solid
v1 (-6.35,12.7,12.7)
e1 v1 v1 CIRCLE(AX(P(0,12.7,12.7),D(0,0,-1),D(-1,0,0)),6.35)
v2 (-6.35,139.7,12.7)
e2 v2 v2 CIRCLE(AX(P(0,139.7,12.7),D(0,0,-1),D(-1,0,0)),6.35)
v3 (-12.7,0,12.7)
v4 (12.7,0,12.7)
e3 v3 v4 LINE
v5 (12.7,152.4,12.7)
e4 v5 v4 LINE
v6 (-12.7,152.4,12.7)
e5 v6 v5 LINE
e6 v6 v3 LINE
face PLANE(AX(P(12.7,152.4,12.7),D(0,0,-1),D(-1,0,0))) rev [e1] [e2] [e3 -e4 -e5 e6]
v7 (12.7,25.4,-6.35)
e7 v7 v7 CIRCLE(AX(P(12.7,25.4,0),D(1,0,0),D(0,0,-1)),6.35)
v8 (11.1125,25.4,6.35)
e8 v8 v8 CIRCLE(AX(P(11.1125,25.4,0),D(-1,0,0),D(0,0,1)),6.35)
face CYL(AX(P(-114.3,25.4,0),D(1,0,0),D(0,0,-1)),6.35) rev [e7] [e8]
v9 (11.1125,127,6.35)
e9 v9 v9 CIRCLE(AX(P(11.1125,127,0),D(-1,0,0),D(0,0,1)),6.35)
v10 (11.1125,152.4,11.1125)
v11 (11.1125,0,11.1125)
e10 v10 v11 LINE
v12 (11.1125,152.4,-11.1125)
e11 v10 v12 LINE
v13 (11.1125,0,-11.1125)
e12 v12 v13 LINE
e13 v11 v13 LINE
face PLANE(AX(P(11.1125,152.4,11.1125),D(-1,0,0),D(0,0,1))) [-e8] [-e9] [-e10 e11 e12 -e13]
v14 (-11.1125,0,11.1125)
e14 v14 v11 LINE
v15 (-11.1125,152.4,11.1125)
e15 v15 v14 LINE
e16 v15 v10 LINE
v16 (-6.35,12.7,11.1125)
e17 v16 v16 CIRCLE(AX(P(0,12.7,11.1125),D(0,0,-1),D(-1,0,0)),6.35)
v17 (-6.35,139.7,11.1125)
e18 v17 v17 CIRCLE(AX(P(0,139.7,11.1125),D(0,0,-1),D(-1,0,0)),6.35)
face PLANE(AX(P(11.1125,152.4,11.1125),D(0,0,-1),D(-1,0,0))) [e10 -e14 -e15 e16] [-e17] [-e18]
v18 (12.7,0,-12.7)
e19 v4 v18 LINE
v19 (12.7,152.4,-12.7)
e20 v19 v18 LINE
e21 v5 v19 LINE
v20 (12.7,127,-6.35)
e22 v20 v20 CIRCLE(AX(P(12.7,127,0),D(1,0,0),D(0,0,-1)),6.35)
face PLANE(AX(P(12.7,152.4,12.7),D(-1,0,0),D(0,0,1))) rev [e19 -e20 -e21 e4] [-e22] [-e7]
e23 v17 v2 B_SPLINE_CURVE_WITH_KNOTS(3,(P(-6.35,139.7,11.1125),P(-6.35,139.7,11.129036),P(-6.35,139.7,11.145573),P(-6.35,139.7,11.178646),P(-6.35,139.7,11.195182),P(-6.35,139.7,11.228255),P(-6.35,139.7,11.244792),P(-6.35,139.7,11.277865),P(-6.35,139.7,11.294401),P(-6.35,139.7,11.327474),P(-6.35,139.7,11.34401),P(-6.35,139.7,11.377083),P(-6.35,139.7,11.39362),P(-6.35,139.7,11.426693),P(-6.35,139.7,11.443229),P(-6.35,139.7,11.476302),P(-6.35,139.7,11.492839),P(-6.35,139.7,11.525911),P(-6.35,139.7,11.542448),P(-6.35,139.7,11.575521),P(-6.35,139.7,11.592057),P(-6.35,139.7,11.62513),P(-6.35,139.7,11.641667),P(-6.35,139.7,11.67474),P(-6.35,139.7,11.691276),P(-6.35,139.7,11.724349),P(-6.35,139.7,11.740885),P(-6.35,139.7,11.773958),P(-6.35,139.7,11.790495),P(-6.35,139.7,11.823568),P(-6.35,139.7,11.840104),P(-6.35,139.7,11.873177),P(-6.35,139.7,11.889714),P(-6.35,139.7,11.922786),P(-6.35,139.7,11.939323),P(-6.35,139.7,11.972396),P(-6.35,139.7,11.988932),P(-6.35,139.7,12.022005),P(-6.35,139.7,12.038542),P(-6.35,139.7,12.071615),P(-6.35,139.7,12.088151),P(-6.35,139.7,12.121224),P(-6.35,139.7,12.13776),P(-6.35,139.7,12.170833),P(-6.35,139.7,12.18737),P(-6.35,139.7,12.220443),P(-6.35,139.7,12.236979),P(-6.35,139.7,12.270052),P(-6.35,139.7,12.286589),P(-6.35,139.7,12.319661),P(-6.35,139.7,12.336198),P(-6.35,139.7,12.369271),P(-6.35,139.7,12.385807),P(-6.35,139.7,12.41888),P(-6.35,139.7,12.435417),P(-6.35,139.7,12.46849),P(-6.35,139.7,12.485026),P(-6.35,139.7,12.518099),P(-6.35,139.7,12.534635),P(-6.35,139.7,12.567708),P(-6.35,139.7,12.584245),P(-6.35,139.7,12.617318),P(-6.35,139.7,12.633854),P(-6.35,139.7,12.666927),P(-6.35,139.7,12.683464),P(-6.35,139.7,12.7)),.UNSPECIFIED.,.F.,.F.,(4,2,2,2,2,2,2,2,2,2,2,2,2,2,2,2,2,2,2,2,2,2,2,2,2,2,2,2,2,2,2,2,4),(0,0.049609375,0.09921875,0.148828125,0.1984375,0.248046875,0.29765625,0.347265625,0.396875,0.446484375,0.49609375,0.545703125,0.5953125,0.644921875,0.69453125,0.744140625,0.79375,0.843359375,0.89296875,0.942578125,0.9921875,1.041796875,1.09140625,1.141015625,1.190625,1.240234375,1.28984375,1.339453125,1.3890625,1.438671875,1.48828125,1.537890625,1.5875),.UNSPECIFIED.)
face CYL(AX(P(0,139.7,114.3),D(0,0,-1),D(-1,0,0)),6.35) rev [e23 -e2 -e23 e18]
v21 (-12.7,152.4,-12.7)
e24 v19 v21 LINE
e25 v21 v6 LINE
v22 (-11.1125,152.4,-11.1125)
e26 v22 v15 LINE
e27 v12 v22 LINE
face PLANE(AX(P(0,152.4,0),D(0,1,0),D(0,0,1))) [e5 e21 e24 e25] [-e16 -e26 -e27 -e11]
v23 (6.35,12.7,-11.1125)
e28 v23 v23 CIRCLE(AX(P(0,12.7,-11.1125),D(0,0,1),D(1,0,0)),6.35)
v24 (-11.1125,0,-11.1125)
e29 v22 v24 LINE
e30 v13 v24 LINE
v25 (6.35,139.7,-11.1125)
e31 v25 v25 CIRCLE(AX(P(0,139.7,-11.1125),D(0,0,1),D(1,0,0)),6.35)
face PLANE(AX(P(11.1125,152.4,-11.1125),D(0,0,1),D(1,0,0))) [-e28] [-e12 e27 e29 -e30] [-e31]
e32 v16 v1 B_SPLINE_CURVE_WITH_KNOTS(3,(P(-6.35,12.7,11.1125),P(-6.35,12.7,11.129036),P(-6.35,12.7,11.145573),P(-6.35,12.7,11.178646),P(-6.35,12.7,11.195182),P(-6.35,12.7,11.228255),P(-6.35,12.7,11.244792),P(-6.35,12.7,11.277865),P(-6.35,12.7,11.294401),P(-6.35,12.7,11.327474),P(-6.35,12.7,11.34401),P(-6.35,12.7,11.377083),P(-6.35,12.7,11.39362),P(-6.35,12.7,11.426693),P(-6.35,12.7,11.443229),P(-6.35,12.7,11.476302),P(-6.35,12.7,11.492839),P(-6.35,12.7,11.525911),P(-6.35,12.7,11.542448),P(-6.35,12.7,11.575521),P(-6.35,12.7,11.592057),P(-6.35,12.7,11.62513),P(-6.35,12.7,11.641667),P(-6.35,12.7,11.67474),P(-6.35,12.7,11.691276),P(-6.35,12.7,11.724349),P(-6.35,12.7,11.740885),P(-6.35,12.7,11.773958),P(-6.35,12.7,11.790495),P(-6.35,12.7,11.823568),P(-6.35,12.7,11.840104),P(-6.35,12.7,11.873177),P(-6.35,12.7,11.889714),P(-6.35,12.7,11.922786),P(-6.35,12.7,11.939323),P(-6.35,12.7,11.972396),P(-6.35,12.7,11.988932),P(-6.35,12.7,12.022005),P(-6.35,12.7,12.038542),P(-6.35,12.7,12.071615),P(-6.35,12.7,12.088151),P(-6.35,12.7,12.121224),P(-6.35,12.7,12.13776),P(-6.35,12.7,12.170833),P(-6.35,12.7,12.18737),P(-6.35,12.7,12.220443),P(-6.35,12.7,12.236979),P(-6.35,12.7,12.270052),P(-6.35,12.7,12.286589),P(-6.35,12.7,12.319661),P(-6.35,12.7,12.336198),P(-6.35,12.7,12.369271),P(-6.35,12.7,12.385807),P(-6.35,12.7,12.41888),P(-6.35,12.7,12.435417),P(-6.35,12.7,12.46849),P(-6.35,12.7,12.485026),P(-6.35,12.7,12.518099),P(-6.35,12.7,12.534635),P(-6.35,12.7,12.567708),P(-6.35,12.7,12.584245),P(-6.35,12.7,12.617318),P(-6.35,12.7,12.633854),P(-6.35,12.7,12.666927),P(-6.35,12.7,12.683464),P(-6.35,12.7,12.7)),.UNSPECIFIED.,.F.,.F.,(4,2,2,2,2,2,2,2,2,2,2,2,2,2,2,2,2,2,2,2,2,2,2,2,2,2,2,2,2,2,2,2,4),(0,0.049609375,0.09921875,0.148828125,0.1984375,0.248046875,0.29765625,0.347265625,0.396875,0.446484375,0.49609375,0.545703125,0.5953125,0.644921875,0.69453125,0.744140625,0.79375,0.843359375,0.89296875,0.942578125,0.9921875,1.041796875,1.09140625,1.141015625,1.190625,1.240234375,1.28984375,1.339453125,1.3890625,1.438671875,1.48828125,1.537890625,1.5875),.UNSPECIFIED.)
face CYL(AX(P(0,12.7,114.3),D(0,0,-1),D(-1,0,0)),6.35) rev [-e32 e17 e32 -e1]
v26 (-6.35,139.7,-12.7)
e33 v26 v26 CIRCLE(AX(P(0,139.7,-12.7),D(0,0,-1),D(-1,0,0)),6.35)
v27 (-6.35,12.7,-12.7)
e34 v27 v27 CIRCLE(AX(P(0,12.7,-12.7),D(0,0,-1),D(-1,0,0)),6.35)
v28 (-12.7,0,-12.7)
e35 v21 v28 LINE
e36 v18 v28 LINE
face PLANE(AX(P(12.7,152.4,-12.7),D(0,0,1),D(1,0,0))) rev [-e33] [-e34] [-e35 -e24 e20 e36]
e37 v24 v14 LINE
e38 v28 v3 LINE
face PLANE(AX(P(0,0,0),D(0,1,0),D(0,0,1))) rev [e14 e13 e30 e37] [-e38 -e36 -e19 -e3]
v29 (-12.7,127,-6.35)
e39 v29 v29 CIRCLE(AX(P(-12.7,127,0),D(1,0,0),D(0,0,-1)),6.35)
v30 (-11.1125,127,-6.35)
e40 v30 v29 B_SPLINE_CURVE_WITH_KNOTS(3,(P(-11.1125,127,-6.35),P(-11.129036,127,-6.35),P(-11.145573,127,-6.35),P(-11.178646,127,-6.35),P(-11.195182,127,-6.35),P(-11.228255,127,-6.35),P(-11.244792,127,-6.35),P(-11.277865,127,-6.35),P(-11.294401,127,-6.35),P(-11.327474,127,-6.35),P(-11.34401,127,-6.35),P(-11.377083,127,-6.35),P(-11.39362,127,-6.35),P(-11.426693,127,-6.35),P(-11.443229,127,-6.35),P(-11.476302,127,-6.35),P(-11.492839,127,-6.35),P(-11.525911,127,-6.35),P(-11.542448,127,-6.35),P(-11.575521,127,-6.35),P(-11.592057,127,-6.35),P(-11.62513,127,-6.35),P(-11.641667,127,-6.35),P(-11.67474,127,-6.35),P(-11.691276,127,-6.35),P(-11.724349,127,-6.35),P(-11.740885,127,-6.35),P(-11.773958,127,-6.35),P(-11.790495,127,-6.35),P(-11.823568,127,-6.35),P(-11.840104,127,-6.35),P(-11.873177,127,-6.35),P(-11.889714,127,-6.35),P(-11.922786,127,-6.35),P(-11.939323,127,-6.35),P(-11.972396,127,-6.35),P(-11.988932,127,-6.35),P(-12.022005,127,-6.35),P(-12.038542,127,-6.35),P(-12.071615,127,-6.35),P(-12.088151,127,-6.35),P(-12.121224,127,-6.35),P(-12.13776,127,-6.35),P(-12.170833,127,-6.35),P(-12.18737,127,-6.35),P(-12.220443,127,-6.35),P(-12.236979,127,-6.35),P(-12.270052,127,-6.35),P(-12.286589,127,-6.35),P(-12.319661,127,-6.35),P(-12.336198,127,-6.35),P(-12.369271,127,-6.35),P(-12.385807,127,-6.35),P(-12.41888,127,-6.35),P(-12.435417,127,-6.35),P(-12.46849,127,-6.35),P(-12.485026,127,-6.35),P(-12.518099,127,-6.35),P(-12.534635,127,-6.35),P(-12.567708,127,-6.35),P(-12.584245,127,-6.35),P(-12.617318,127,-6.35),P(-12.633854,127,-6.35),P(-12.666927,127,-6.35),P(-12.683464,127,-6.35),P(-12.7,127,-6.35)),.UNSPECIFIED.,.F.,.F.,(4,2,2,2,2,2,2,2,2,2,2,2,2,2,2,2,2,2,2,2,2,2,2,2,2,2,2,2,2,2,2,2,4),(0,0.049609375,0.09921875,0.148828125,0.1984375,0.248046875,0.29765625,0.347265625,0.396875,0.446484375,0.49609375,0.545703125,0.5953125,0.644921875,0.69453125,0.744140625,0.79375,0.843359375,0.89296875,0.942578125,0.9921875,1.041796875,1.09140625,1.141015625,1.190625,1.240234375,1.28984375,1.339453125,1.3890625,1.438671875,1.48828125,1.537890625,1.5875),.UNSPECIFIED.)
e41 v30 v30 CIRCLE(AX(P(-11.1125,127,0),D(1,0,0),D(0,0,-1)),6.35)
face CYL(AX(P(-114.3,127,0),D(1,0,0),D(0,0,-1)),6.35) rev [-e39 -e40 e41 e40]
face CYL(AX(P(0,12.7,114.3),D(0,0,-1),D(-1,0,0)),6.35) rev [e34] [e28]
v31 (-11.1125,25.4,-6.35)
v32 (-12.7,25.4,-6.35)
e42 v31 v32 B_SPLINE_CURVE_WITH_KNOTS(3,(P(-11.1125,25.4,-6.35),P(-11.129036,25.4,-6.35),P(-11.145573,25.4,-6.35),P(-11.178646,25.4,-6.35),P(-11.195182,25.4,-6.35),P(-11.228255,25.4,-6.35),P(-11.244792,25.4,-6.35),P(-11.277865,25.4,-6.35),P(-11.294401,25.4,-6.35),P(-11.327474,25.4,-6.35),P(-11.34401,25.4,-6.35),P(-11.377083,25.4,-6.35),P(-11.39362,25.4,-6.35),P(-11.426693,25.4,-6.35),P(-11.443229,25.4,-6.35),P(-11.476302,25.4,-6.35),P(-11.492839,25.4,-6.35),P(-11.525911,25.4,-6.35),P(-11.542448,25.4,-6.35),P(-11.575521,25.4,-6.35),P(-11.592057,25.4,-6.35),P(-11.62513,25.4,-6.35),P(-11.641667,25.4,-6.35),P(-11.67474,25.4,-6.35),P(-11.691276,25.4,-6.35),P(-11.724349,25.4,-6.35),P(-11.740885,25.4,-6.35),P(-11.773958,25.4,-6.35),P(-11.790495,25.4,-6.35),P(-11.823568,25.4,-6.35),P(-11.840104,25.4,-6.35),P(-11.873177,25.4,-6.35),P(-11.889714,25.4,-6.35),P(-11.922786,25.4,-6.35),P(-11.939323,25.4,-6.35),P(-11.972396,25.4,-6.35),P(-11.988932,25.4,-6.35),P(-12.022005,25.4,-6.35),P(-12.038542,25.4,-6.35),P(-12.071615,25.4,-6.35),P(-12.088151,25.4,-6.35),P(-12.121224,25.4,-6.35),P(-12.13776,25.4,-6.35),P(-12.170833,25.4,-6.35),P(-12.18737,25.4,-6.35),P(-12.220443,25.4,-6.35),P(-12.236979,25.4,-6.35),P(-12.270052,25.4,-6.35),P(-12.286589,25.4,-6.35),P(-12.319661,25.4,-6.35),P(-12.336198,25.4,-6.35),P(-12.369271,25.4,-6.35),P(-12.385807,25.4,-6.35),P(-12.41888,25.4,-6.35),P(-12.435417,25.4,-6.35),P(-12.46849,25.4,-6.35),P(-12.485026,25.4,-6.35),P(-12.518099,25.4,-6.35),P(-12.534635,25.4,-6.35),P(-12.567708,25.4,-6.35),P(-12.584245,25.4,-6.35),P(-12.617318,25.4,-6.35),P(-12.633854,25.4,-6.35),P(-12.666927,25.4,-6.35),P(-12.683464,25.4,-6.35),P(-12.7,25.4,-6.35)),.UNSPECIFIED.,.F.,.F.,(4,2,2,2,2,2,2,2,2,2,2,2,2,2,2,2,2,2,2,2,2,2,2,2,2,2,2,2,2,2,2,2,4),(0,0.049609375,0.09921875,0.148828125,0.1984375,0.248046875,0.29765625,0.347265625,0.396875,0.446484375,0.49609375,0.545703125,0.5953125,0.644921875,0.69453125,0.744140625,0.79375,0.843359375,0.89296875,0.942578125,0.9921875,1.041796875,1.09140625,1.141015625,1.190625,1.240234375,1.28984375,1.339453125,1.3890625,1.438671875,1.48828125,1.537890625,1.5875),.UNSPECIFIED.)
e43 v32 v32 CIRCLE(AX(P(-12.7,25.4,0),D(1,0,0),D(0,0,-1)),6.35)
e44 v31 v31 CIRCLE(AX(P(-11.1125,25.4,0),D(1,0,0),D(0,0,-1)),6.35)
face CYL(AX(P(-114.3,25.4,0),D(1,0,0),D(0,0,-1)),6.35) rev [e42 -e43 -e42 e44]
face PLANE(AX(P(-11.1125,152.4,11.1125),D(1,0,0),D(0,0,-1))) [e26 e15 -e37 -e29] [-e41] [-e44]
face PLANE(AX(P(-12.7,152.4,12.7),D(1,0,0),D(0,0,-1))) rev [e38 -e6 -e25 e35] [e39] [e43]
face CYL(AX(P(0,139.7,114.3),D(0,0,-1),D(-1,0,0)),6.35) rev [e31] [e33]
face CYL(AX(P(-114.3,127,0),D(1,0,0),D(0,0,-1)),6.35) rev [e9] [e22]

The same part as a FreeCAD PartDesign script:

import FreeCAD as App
import Part
import Sketcher
Q = App.Units.Quantity


def add_polygon(sketch, points):
    """Adds a closed chain of lines whose ends are joined by coincident constraints."""
    first, n = sketch.GeometryCount, len(points)
    for a, b in zip(points, points[1:] + points[:1]):
        sketch.addGeometry(Part.LineSegment(App.Vector(*a, 0), App.Vector(*b, 0)), False)
    for i in range(n):
        sketch.addConstraint(Sketcher.Constraint("Coincident", first + i, 2, first + (i + 1) % n, 1))

doc = App.newDocument("Part")
body = doc.addObject("PartDesign::Body", "Body")

# Sketch on XZ plane
sketch1 = doc.addObject("Sketcher::SketchObject", "Sketch")
body.addObject(sketch1)
sketch1.AttachmentSupport = (doc.XZ_Plane, [""])
sketch1.MapMode = "FlatFace"
add_polygon(sketch1, [(-12.7, -12.7), (-12.7, 12.7), (12.7, 12.7), (12.7, -12.7)])  # lines 0-3
add_polygon(sketch1, [(11.1125, 11.1125), (-11.1125, 11.1125), (-11.1125, -11.1125), (11.1125, -11.1125)])  # lines 4-7
sketch1.addConstraint(Sketcher.Constraint("Vertical", 0))
sketch1.addConstraint(Sketcher.Constraint("Horizontal", 1))
sketch1.addConstraint(Sketcher.Constraint("Vertical", 2))
sketch1.addConstraint(Sketcher.Constraint("Horizontal", 3))
sketch1.addConstraint(Sketcher.Constraint("Horizontal", 4))
sketch1.addConstraint(Sketcher.Constraint("Vertical", 5))
sketch1.addConstraint(Sketcher.Constraint("Horizontal", 6))
sketch1.addConstraint(Sketcher.Constraint("Vertical", 7))
sketch1.addConstraint(Sketcher.Constraint("Symmetric", 0, 2, 2, 2, -1, 1))
sketch1.addConstraint(Sketcher.Constraint("Symmetric", 4, 2, 6, 2, -1, 1))
sketch1.addConstraint(Sketcher.Constraint("Equal", 3, 0))
sketch1.addConstraint(Sketcher.Constraint("Equal", 6, 5))
sketch1.addConstraint(Sketcher.Constraint("DistanceX", 1, 1, 1, 2, Q("1 in")))
sketch1.addConstraint(Sketcher.Constraint("DistanceX", 4, 2, 4, 1, Q("0.875 in")))
pad1 = doc.addObject("PartDesign::Pad", "Pad")
body.addObject(pad1)
pad1.Profile = sketch1
pad1.Length = Q("6 in")
pad1.Reversed = True

# Sketch on XY plane
sketch2 = doc.addObject("Sketcher::SketchObject", "Sketch001")
body.addObject(sketch2)
sketch2.AttachmentSupport = (doc.XY_Plane, [""])
sketch2.MapMode = "FlatFace"
sketch2.AttachmentOffset = App.Placement(App.Vector(0, 0, -0.5 * 25.4), App.Rotation())
sketch2.addGeometry(Part.Circle(App.Vector(0, 139.7, 0), App.Vector(0, 0, 1), 6.35), False)
sketch2.addConstraint(Sketcher.Constraint("PointOnObject", 0, 3, -2))
sketch2.addConstraint(Sketcher.Constraint("Diameter", 0, Q("0.5 in")))
sketch2.addConstraint(Sketcher.Constraint("DistanceY", -1, 1, 0, 3, Q("5.5 in")))
pocket1 = doc.addObject("PartDesign::Pocket", "Pocket")
body.addObject(pocket1)
pocket1.Profile = sketch2
pocket1.Length = Q("5 in")
pocket1.Reversed = True

# Sketch on YZ plane
sketch3 = doc.addObject("Sketcher::SketchObject", "Sketch002")
body.addObject(sketch3)
sketch3.AttachmentSupport = (doc.YZ_Plane, [""])
sketch3.MapMode = "FlatFace"
sketch3.AttachmentOffset = App.Placement(App.Vector(0, 0, 0.5 * 25.4), App.Rotation())
sketch3.addGeometry(Part.Circle(App.Vector(127, 0, 0), App.Vector(0, 0, 1), 6.35), False)
sketch3.addConstraint(Sketcher.Constraint("PointOnObject", 0, 3, -1))
sketch3.addConstraint(Sketcher.Constraint("Diameter", 0, Q("0.5 in")))
sketch3.addConstraint(Sketcher.Constraint("DistanceX", -1, 1, 0, 3, Q("5 in")))
pocket2 = doc.addObject("PartDesign::Pocket", "Pocket001")
body.addObject(pocket2)
pocket2.Profile = sketch3
pocket2.Length = Q("5 in")

# Sketch on XY plane
sketch4 = doc.addObject("Sketcher::SketchObject", "Sketch003")
body.addObject(sketch4)
sketch4.AttachmentSupport = (doc.XY_Plane, [""])
sketch4.MapMode = "FlatFace"
sketch4.AttachmentOffset = App.Placement(App.Vector(0, 0, -0.5 * 25.4), App.Rotation())
sketch4.addGeometry(Part.Circle(App.Vector(0, 12.7, 0), App.Vector(0, 0, 1), 6.35), False)
sketch4.addConstraint(Sketcher.Constraint("PointOnObject", 0, 3, -2))
sketch4.addConstraint(Sketcher.Constraint("Diameter", 0, Q("0.5 in")))
sketch4.addConstraint(Sketcher.Constraint("DistanceY", -1, 1, 0, 3, Q("0.5 in")))
pocket3 = doc.addObject("PartDesign::Pocket", "Pocket002")
body.addObject(pocket3)
pocket3.Profile = sketch4
pocket3.Length = Q("5 in")
pocket3.Reversed = True

# Sketch on YZ plane
sketch5 = doc.addObject("Sketcher::SketchObject", "Sketch004")
body.addObject(sketch5)
sketch5.AttachmentSupport = (doc.YZ_Plane, [""])
sketch5.MapMode = "FlatFace"
sketch5.AttachmentOffset = App.Placement(App.Vector(0, 0, 0.5 * 25.4), App.Rotation())
sketch5.addGeometry(Part.Circle(App.Vector(25.4, 0, 0), App.Vector(0, 0, 1), 6.35), False)
sketch5.addConstraint(Sketcher.Constraint("PointOnObject", 0, 3, -1))
sketch5.addConstraint(Sketcher.Constraint("Diameter", 0, Q("0.5 in")))
sketch5.addConstraint(Sketcher.Constraint("DistanceX", -1, 1, 0, 3, Q("1 in")))
pocket4 = doc.addObject("PartDesign::Pocket", "Pocket003")
body.addObject(pocket4)
pocket4.Profile = sketch5
pocket4.Length = Q("5 in")

doc.recompute()
